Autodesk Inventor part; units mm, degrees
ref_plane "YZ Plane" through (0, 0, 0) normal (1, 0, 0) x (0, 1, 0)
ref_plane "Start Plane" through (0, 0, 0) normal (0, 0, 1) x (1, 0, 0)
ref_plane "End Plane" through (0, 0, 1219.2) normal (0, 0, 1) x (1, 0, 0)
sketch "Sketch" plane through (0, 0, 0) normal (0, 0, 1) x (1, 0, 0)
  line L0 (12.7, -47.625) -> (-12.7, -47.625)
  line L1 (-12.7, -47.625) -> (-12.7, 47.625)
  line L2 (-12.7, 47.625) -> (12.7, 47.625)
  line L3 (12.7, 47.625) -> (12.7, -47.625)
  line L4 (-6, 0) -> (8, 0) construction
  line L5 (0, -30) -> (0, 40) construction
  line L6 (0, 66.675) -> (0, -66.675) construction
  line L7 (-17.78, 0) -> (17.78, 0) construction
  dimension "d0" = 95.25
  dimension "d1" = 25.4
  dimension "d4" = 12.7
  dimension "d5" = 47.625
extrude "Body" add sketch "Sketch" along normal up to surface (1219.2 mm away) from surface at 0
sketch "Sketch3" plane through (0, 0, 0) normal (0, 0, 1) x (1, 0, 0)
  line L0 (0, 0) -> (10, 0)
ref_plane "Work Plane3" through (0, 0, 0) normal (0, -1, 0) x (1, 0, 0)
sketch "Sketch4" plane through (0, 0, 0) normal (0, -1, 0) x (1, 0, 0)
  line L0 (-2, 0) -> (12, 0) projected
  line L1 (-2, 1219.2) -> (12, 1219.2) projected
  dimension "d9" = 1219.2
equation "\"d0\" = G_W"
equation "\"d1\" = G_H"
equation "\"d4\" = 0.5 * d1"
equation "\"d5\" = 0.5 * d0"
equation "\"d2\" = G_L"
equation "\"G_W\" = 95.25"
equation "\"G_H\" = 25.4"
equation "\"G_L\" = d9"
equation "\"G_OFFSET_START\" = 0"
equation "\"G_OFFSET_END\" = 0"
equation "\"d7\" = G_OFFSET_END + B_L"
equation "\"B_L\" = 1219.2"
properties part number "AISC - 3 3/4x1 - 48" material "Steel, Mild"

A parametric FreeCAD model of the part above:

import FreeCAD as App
import Part
import Sketcher
Q = App.Units.Quantity

doc = App.newDocument("Part")
params = doc.addObject("Spreadsheet::Sheet", "Params")
for row, (alias, value) in enumerate([
    ("sketch1_width", "1 in"),
    ("sketch1_height", "3.75 in"),
    ("pad1_length", "48 in"),
], start=1):
    params.set(f"A{row}", alias)
    params.set(f"B{row}", "=" + value)
    params.setAlias(f"B{row}", alias)

body = doc.addObject("PartDesign::Body", "Body")

# Sketch on XY plane
sketch1 = body.newObject("Sketcher::SketchObject", "Sketch")
sketch1.AttachmentSupport = (doc.getObject("XY_Plane"), [""])
sketch1.MapMode = "FlatFace"
sketch1.addGeometry(Part.LineSegment(App.Vector(-13, -48, 0), App.Vector(13, -48, 0)), False)
sketch1.addGeometry(Part.LineSegment(App.Vector(13, -48, 0), App.Vector(13, 48, 0)), False)
sketch1.addGeometry(Part.LineSegment(App.Vector(13, 48, 0), App.Vector(-13, 48, 0)), False)
sketch1.addGeometry(Part.LineSegment(App.Vector(-13, 48, 0), App.Vector(-13, -48, 0)), False)
sketch1.addConstraint(Sketcher.Constraint("Coincident", 0, 2, 1, 1))
sketch1.addConstraint(Sketcher.Constraint("Coincident", 1, 2, 2, 1))
sketch1.addConstraint(Sketcher.Constraint("Coincident", 2, 2, 3, 1))
sketch1.addConstraint(Sketcher.Constraint("Coincident", 3, 2, 0, 1))
sketch1.addConstraint(Sketcher.Constraint("Horizontal", 0))
sketch1.addConstraint(Sketcher.Constraint("Vertical", 1))
sketch1.addConstraint(Sketcher.Constraint("Horizontal", 2))
sketch1.addConstraint(Sketcher.Constraint("Vertical", 3))
sketch1.addConstraint(Sketcher.Constraint("Symmetric", 0, 2, 2, 2, -1, 1))
sketch1.addConstraint(Sketcher.Constraint("DistanceX", 0, 1, 0, 2, Q("1 in")))
sketch1.addConstraint(Sketcher.Constraint("DistanceY", 1, 1, 1, 2, Q("3.75 in")))
sketch1.setExpression("Constraints[9]", "Params.sketch1_width")
sketch1.setExpression("Constraints[10]", "Params.sketch1_height")
pad1 = body.newObject("PartDesign::Pad", "Pad")
pad1.Profile = sketch1
pad1.setExpression("Length", "Params.pad1_length")

doc.recompute()
